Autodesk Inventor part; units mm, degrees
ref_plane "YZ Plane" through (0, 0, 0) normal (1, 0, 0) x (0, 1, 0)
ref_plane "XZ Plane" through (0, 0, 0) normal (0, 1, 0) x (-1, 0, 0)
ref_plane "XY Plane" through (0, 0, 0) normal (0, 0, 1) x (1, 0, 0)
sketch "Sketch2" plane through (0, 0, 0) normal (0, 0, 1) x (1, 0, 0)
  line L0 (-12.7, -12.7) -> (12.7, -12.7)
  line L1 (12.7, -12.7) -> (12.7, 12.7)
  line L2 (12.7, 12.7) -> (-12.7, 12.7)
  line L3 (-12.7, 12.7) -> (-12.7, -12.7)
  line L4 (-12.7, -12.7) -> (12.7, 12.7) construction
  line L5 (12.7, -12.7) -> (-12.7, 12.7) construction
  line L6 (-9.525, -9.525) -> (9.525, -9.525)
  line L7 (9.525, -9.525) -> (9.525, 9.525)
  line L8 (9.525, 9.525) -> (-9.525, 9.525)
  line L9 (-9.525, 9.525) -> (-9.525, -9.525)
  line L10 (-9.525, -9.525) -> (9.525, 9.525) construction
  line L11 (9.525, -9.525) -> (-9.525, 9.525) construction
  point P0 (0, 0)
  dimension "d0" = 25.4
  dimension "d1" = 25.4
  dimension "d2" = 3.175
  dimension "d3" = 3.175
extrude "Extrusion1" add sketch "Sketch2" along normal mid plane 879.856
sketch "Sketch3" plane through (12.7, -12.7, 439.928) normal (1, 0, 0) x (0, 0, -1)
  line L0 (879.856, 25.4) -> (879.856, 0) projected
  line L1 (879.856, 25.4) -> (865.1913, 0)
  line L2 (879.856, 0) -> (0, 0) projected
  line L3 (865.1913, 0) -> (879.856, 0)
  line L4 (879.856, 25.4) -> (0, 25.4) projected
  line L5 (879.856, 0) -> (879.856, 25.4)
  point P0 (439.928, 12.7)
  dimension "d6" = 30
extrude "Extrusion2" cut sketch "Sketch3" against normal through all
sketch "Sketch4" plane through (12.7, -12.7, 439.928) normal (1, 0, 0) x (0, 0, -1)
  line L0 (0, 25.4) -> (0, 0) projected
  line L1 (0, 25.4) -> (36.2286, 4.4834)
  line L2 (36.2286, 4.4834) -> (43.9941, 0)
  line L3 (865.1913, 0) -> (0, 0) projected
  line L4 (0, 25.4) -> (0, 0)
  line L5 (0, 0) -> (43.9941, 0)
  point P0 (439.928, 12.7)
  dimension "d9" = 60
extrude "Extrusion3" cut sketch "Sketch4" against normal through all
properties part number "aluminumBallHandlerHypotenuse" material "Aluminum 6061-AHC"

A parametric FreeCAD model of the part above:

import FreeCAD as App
import Part
import Sketcher

V = App.Vector
Q = App.Units.Quantity


def add_polygon(sketch, points):
    """Adds a closed chain of lines whose ends are joined by coincident constraints."""
    first, n = sketch.GeometryCount, len(points)
    for a, b in zip(points, points[1:] + points[:1]):
        sketch.addGeometry(Part.LineSegment(App.Vector(*a, 0), App.Vector(*b, 0)), False)
    for i in range(n):
        sketch.addConstraint(Sketcher.Constraint("Coincident", first + i, 2, first + (i + 1) % n, 1))

doc = App.newDocument("Part")
body = doc.addObject("PartDesign::Body", "Body")

# Sketch on XY plane
sketch1 = body.newObject("Sketcher::SketchObject", "Sketch")
sketch1.AttachmentSupport = (doc.getObject("XY_Plane"), [""])
sketch1.MapMode = "FlatFace"
add_polygon(sketch1, [(-12.7, 12.7), (-12.7, -12.7), (12.7, -12.7), (12.7, 12.7)])  # lines 0-3
add_polygon(sketch1, [(9.525, -9.525), (-9.525, -9.525), (-9.525, 9.525), (9.525, 9.525)])  # lines 4-7
sketch1.addConstraint(Sketcher.Constraint("Vertical", 0))
sketch1.addConstraint(Sketcher.Constraint("Horizontal", 1))
sketch1.addConstraint(Sketcher.Constraint("Vertical", 2))
sketch1.addConstraint(Sketcher.Constraint("Horizontal", 3))
sketch1.addConstraint(Sketcher.Constraint("Horizontal", 4))
sketch1.addConstraint(Sketcher.Constraint("Vertical", 5))
sketch1.addConstraint(Sketcher.Constraint("Horizontal", 6))
sketch1.addConstraint(Sketcher.Constraint("Vertical", 7))
sketch1.addConstraint(Sketcher.Constraint("Symmetric", 0, 2, 2, 2, -1, 1))
sketch1.addConstraint(Sketcher.Constraint("Symmetric", 4, 2, 6, 2, -1, 1))
sketch1.addConstraint(Sketcher.Constraint("Equal", 3, 0))
sketch1.addConstraint(Sketcher.Constraint("Equal", 6, 5))
sketch1.addConstraint(Sketcher.Constraint("DistanceX", 1, 1, 1, 2, Q("1 in")))
sketch1.addConstraint(Sketcher.Constraint("DistanceX", 0, 2, 4, 2, Q("0.125 in")))
pad1 = body.newObject("PartDesign::Pad", "Pad")
pad1.Profile = sketch1
pad1.Length = Q("34.64 in")
pad1.Midplane = True

# Sketch on YZ plane
sketch2 = body.newObject("Sketcher::SketchObject", "Sketch001")
sketch2.AttachmentSupport = (doc.getObject("YZ_Plane"), [""])
sketch2.MapMode = "FlatFace"
sketch2.AttachmentOffset = App.Placement(V(0, 0, 0.5 * 25.4), App.Rotation())
add_polygon(sketch2, [(-12.7, -439.928), (12.7, -439.928), (-12.7, -425.2633)])  # lines 0-2
sketch2.addConstraint(Sketcher.Constraint("Horizontal", 0))
sketch2.addConstraint(Sketcher.Constraint("Vertical", 2))
sketch2.addConstraint(Sketcher.Constraint("DistanceX", 0, 1, 0, 2, Q("1 in")))
sketch2.addConstraint(Sketcher.Constraint("Angle", 1, Q("150 deg")))
sketch2.addConstraint(Sketcher.Constraint("DistanceX", -1, 1, 0, 2, Q("0.5 in")))
sketch2.addConstraint(Sketcher.Constraint("DistanceY", 0, 2, -1, 1, Q("17.32 in")))
pocket1 = body.newObject("PartDesign::Pocket", "Pocket")
pocket1.Profile = sketch2
pocket1.Type = "ThroughAll"

# Sketch on YZ plane
sketch3 = body.newObject("Sketcher::SketchObject", "Sketch002")
sketch3.AttachmentSupport = (doc.getObject("YZ_Plane"), [""])
sketch3.MapMode = "FlatFace"
sketch3.AttachmentOffset = App.Placement(V(0, 0, 0.5 * 25.4), App.Rotation())
add_polygon(sketch3, [(-8.2166, 403.6994), (12.7, 439.928), (-12.7, 439.928), (-12.7, 395.9339)])  # lines 0-3
sketch3.addConstraint(Sketcher.Constraint("Horizontal", 1))
sketch3.addConstraint(Sketcher.Constraint("Vertical", 2))
sketch3.addConstraint(Sketcher.Constraint("Parallel", 0, 3))
sketch3.addConstraint(Sketcher.Constraint("Angle", 0, Q("60 deg")))
sketch3.addConstraint(Sketcher.Constraint("DistanceX", 1, 2, 1, 1, Q("1 in")))
sketch3.addConstraint(Sketcher.Constraint("DistanceX", -1, 1, 0, 2, Q("0.5 in")))
sketch3.addConstraint(Sketcher.Constraint("DistanceY", -1, 1, 0, 2, Q("17.32 in")))
sketch3.addConstraint(Sketcher.Constraint("DistanceX", 3, 2, -1, 1, Q("0.3235 in")))
pocket2 = body.newObject("PartDesign::Pocket", "Pocket001")
pocket2.Profile = sketch3
pocket2.Type = "ThroughAll"

doc.recompute()
